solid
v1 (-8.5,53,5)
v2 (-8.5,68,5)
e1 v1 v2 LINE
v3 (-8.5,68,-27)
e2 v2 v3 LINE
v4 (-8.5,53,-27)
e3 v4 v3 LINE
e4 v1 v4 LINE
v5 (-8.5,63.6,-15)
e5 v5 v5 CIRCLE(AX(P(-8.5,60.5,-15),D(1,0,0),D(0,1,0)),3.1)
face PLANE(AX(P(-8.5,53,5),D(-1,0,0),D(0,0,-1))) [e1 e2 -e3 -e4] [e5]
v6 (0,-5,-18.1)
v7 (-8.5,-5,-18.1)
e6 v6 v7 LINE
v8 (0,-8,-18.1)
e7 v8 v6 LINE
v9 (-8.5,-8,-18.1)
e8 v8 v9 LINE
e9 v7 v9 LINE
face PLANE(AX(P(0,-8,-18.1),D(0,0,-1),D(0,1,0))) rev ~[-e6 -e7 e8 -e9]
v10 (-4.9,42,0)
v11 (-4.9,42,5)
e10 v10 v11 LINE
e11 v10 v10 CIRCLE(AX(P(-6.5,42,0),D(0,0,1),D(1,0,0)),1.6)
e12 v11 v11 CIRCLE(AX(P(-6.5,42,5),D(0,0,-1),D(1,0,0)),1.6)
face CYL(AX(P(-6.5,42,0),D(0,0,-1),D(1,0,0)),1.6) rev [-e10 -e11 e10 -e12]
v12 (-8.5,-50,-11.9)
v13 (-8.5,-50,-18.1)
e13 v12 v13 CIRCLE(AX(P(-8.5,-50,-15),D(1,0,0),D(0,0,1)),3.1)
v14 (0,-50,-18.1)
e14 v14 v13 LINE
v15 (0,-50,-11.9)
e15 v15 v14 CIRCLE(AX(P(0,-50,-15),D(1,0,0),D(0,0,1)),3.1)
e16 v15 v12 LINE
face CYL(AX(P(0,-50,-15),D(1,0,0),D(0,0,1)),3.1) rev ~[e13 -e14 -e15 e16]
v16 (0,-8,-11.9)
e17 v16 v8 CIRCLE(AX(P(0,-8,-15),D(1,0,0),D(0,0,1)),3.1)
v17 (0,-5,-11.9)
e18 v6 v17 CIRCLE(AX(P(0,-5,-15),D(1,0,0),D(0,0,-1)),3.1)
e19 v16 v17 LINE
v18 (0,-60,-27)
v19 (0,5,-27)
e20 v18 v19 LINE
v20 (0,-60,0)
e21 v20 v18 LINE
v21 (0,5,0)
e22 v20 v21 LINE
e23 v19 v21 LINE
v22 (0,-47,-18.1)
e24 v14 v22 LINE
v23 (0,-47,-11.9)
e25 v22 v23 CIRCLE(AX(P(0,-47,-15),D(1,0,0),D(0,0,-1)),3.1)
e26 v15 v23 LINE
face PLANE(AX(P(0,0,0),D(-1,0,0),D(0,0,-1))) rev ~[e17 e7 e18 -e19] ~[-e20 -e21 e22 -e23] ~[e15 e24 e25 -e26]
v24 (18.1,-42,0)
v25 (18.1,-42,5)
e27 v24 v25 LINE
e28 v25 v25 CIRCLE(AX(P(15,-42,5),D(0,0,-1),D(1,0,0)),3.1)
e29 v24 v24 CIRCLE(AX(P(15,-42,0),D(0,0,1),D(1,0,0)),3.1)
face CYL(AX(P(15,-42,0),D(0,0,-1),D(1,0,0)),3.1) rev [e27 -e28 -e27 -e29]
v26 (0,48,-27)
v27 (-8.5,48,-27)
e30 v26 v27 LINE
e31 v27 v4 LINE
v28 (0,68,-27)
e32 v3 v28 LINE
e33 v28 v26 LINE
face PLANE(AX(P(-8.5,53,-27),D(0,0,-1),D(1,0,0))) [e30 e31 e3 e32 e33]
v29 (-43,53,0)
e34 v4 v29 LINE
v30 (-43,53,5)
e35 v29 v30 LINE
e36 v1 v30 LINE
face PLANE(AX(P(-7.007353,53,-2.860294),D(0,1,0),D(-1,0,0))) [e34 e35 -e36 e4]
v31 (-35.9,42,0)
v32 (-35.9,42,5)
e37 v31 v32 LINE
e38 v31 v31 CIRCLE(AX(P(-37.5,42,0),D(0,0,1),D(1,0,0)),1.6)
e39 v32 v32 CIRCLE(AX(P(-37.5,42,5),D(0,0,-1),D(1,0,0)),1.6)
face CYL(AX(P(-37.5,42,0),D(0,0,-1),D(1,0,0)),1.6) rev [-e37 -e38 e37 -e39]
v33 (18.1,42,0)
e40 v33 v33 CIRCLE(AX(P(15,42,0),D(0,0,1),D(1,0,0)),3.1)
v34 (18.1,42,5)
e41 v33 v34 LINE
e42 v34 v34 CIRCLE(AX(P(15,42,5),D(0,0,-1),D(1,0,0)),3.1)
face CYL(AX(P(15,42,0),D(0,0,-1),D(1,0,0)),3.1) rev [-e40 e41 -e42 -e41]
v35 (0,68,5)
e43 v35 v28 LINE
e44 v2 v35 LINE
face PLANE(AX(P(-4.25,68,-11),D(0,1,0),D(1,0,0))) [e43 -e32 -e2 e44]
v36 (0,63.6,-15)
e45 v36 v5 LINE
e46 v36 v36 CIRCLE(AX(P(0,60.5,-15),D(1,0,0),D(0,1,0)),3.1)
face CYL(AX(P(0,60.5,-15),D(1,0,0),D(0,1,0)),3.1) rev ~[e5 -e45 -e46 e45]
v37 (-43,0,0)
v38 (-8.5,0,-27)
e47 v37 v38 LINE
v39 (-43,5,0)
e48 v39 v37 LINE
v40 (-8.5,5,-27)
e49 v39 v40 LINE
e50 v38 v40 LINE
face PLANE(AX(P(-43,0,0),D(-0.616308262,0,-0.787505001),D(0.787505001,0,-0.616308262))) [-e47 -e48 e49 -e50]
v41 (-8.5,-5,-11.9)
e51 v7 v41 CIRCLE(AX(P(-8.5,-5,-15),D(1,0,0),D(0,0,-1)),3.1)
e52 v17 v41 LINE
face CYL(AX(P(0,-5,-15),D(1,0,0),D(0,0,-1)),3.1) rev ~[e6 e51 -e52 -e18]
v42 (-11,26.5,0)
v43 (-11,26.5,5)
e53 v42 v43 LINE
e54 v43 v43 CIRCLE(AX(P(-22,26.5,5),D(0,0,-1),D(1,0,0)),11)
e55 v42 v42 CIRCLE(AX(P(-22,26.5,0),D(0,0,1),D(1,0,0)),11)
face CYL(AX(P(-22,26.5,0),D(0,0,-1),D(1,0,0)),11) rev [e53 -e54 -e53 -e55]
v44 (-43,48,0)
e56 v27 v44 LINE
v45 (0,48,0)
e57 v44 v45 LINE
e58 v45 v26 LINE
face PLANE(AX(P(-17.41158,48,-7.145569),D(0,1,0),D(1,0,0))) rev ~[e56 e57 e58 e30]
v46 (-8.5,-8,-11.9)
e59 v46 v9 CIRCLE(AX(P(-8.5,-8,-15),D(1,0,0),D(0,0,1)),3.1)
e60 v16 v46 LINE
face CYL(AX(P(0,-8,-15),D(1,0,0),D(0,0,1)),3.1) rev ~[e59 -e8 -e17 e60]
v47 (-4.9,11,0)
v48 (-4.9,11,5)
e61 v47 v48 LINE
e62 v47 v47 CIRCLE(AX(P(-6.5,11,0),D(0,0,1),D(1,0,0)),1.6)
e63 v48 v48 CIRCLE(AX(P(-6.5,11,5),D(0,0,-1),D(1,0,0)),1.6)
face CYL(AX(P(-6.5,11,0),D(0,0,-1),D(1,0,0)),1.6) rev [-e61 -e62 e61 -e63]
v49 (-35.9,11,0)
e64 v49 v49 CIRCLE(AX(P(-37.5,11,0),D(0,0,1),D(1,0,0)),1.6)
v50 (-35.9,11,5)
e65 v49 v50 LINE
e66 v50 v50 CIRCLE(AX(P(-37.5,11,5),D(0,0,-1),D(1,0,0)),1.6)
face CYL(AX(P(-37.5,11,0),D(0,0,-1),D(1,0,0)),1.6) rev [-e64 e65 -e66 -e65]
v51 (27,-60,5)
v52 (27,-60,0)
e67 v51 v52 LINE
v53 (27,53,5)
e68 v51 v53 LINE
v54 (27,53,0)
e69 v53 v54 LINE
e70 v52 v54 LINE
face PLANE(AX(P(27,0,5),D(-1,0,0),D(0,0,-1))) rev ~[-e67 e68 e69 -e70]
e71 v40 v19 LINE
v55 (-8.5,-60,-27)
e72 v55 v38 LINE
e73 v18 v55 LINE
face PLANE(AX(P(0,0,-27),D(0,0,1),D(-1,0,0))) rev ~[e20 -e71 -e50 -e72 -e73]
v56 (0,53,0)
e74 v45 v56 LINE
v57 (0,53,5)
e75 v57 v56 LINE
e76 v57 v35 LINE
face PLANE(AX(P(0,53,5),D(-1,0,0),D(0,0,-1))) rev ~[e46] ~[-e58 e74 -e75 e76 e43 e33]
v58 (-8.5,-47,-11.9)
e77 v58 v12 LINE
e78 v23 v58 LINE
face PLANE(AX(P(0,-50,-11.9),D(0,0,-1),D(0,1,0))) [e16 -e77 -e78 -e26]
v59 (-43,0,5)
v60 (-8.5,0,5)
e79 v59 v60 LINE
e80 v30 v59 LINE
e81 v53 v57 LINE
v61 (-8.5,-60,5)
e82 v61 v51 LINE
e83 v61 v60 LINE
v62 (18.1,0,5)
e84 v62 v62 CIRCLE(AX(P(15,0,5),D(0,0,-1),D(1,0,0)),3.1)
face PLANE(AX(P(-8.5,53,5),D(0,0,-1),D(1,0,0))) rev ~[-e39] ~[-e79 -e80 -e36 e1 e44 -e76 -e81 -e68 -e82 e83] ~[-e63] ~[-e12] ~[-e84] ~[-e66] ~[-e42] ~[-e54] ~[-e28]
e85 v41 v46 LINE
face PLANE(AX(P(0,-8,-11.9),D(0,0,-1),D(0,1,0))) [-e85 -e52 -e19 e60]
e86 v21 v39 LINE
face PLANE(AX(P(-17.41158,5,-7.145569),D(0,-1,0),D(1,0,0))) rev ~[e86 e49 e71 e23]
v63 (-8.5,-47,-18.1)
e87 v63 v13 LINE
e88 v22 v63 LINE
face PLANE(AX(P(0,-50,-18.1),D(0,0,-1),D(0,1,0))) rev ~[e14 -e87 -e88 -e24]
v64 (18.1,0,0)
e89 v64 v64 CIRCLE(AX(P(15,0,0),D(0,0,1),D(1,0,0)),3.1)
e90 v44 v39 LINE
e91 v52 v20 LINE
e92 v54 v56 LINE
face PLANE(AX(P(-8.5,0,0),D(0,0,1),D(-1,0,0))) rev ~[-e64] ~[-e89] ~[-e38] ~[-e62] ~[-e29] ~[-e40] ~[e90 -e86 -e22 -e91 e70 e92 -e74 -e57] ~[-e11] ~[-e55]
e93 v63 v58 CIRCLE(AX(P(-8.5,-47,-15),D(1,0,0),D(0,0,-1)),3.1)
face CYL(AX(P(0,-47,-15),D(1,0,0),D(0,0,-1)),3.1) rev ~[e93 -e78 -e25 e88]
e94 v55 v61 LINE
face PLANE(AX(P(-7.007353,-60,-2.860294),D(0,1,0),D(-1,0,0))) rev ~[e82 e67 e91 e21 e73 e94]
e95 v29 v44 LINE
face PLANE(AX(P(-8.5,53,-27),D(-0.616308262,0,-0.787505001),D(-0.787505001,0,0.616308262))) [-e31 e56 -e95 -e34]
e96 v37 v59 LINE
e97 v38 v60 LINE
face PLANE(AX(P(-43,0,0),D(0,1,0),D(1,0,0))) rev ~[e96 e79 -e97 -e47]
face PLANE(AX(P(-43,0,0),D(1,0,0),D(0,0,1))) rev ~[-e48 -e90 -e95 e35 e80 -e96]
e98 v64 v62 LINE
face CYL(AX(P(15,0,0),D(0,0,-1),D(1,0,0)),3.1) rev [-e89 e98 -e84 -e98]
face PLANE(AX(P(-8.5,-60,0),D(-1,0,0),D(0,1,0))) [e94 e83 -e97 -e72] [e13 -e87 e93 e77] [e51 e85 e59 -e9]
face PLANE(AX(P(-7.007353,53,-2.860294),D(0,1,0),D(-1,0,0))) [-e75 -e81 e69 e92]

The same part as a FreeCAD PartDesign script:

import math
import FreeCAD as App
import Part
import Sketcher

V = App.Vector
Q = App.Units.Quantity

doc = App.newDocument("Part")
params = doc.addObject("Spreadsheet::Sheet", "Params")
for row, (alias, value) in enumerate([
    ("sketch1_width", "70 mm"),
    ("sketch1_width2", "27 mm"),
    ("sketch1_height", "5 mm"),
    ("sketch1_width3", "34.5 mm"),
    ("pad1_length", "60 mm"),
    ("pad1_length2", "53 mm"),
    ("sketch2_diameter", "22 mm"),
    ("sketch2_diameter2", "3.2 mm"),
    ("sketch2_diameter3", "6.2 mm"),
    ("sketch2_height", "60 mm"),
    ("sketch2_width", "34.5 mm"),
    ("sketch3_radius", "3.1 mm"),
    ("sketch3_width", "3 mm"),
    ("sketch4_width", "43 mm"),
    ("sketch4_height", "5 mm"),
    ("sketch4_height2", "32 mm"),
    ("sketch4_width2", "8.5 mm"),
    ("pad2_length", "5 mm"),
    ("sketch5_width", "43 mm"),
    ("sketch5_height", "32 mm"),
    ("sketch5_height2", "5 mm"),
    ("sketch5_width2", "8.5 mm"),
    ("pad3_length", "5 mm"),
    ("sketch6_width", "43 mm"),
    ("sketch6_height", "27 mm"),
    ("sketch7_height", "32 mm"),
    ("sketch7_width", "8.5 mm"),
    ("pad4_length", "15 mm"),
    ("sketch8_diameter", "6.2 mm"),
], start=1):
    params.set(f"A{row}", alias)
    params.set(f"B{row}", "=" + value)
    params.setAlias(f"B{row}", alias)

body = doc.addObject("PartDesign::Body", "Body")

# Sketch on XZ plane
sketch1 = doc.addObject("Sketcher::SketchObject", "Sketch")
body.addObject(sketch1)
sketch1.AttachmentSupport = (doc.XZ_Plane, [""])
sketch1.MapMode = "FlatFace"
sketch1.addGeometry([
    Part.LineSegment(V(27, 5, 0), V(-43, 5, 0)),  # 0
    Part.LineSegment(V(-43, 5, 0), V(-43, 0, 0)),  # 1
    Part.LineSegment(V(-43, 0, 0), V(-8.5, 0, 0)),  # 2
    Part.LineSegment(V(-8.5, 0, 0), V(-8.5, -27, 0)),  # 3
    Part.LineSegment(V(-8.5, -27, 0), V(0, -27, 0)),  # 4
    Part.LineSegment(V(0, -27, 0), V(0, 0, 0)),  # 5
    Part.LineSegment(V(0, 0, 0), V(27, 0, 0)),  # 6
    Part.LineSegment(V(27, 0, 0), V(27, 5, 0)),  # 7
], False)
sketch1.addConstraint([
    Sketcher.Constraint("Coincident", 0, 2, 1, 1),
    Sketcher.Constraint("Coincident", 1, 2, 2, 1),
    Sketcher.Constraint("Coincident", 2, 2, 3, 1),
    Sketcher.Constraint("Coincident", 3, 2, 4, 1),
    Sketcher.Constraint("Coincident", 4, 2, 5, 1),
    Sketcher.Constraint("Coincident", 5, 2, 6, 1),
    Sketcher.Constraint("Coincident", 6, 2, 7, 1),
    Sketcher.Constraint("Coincident", 7, 2, 0, 1),
    Sketcher.Constraint("Horizontal", 0),
    Sketcher.Constraint("Vertical", 1),
    Sketcher.Constraint("Horizontal", 2),
    Sketcher.Constraint("Vertical", 3),
    Sketcher.Constraint("Horizontal", 4),
    Sketcher.Constraint("Vertical", 5),
    Sketcher.Constraint("Horizontal", 6),
    Sketcher.Constraint("Vertical", 7),
    Sketcher.Constraint("Coincident", 5, 2, -1, 1),
    Sketcher.Constraint("PointOnObject", 1, 2, -1),
    Sketcher.Constraint("Equal", 6, 3),
    Sketcher.Constraint("DistanceX", 0, 2, 0, 1, Q("70 mm")),
    Sketcher.Constraint("DistanceX", 6, 1, 6, 2, Q("27 mm")),
    Sketcher.Constraint("DistanceY", 1, 2, 1, 1, Q("5 mm")),
    Sketcher.Constraint("DistanceX", 2, 1, 2, 2, Q("34.5 mm")),
])
sketch1.setExpression("Constraints[19]", "Params.sketch1_width")
sketch1.setExpression("Constraints[20]", "Params.sketch1_width2")
sketch1.setExpression("Constraints[21]", "Params.sketch1_height")
sketch1.setExpression("Constraints[22]", "Params.sketch1_width3")
pad1 = doc.addObject("PartDesign::Pad", "Pad")
body.addObject(pad1)
pad1.Profile = sketch1
pad1.Type = "TwoLengths"
pad1.setExpression("Length", "Params.pad1_length")
pad1.setExpression("Length2", "Params.pad1_length2")

# Sketch on XY plane
sketch2 = doc.addObject("Sketcher::SketchObject", "Sketch001")
body.addObject(sketch2)
sketch2.AttachmentSupport = (doc.XY_Plane, [""])
sketch2.MapMode = "FlatFace"
sketch2.addGeometry([
    Part.Circle(V(-22, 26.5, 0), V(0, 0, 1), 11),  # 0
    Part.Circle(V(-37.5, 42, 0), V(0, 0, 1), 1.6),  # 1
    Part.Circle(V(-6.5, 42, 0), V(0, 0, 1), 1.6),  # 2
    Part.Circle(V(-37.5, 11, 0), V(0, 0, 1), 1.6),  # 3
    Part.Circle(V(-6.5, 11, 0), V(0, 0, 1), 1.6),  # 4
    Part.Circle(V(15, 42, 0), V(0, 0, 1), 3.1),  # 5
    Part.Circle(V(15, -42, 0), V(0, 0, 1), 3.1),  # 6
    Part.Circle(V(15, 0, 0), V(0, 0, 1), 3.1),  # 7
    Part.LineSegment(V(-43, 0, 0), V(-43, -60, 0)),  # 8
    Part.LineSegment(V(-43, -60, 0), V(-8.5, -60, 0)),  # 9
    Part.LineSegment(V(-8.5, -60, 0), V(-8.5, 0, 0)),  # 10
    Part.LineSegment(V(-8.5, 0, 0), V(-43, 0, 0)),  # 11
], False)
sketch2.addConstraint([
    Sketcher.Constraint("Coincident", 8, 2, 9, 1),
    Sketcher.Constraint("Coincident", 9, 2, 10, 1),
    Sketcher.Constraint("Coincident", 10, 2, 11, 1),
    Sketcher.Constraint("Coincident", 11, 2, 8, 1),
    Sketcher.Constraint("Vertical", 8),
    Sketcher.Constraint("Horizontal", 9),
    Sketcher.Constraint("Vertical", 10),
    Sketcher.Constraint("Horizontal", 11),
    Sketcher.Constraint("Equal", 1, 2),
    Sketcher.Constraint("Equal", 2, 3),
    Sketcher.Constraint("Equal", 3, 4),
    Sketcher.Constraint("Equal", 5, 6),
    Sketcher.Constraint("Equal", 6, 7),
    Sketcher.Constraint("Symmetric", 5, 3, 6, 3, -1),
    Sketcher.Constraint("PointOnObject", 7, 3, -1),
    Sketcher.Constraint("PointOnObject", 10, 2, -1),
    Sketcher.Constraint("Horizontal", 1, 3, 2, 3),
    Sketcher.Constraint("Horizontal", 3, 3, 4, 3),
    Sketcher.Constraint("Horizontal", 2, 3, 5, 3),
    Sketcher.Constraint("Vertical", 1, 3, 3, 3),
    Sketcher.Constraint("Vertical", 2, 3, 4, 3),
    Sketcher.Constraint("Vertical", 6, 3, 7, 3),
    Sketcher.Constraint("Diameter", 0, Q("22 mm")),
    Sketcher.Constraint("Diameter", 1, Q("3.2 mm")),
    Sketcher.Constraint("Diameter", 5, Q("6.2 mm")),
    Sketcher.Constraint("DistanceY", 8, 2, 8, 1, Q("60 mm")),
    Sketcher.Constraint("DistanceX", 9, 1, 9, 2, Q("34.5 mm")),
    Sketcher.Constraint("DistanceX", 0, 3, -1, 1, Q("22 mm")),
    Sketcher.Constraint("DistanceY", -1, 1, 1, 3, Q("42 mm")),
    Sketcher.Constraint("DistanceY", -1, 1, 3, 3, Q("11 mm")),
    Sketcher.Constraint("DistanceX", -1, 1, 5, 3, Q("15 mm")),
    Sketcher.Constraint("DistanceX", 8, 2, -1, 1, Q("43 mm")),
    Sketcher.Constraint("DistanceX", 1, 3, 2, 3, Q("31 mm")),
    Sketcher.Constraint("DistanceX", 9, 2, 4, 3, Q("2 mm")),
    Sketcher.Constraint("DistanceY", -1, 1, 0, 3, Q("26.5 mm")),
])
sketch2.setExpression("Constraints[22]", "Params.sketch2_diameter")
sketch2.setExpression("Constraints[23]", "Params.sketch2_diameter2")
sketch2.setExpression("Constraints[24]", "Params.sketch2_diameter3")
sketch2.setExpression("Constraints[25]", "Params.sketch2_height")
sketch2.setExpression("Constraints[26]", "Params.sketch2_width")
pocket1 = doc.addObject("PartDesign::Pocket", "Pocket")
body.addObject(pocket1)
pocket1.Profile = sketch2
pocket1.Type = "ThroughAll"
pocket1.Midplane = True

# Sketch on YZ plane
sketch3 = doc.addObject("Sketcher::SketchObject", "Sketch002")
body.addObject(sketch3)
sketch3.AttachmentSupport = (doc.YZ_Plane, [""])
sketch3.MapMode = "FlatFace"
sketch3.addGeometry([
    Part.ArcOfCircle(Part.Circle(V(-50, -15, 0), V(0, 0, 1), 3.1), math.radians(90), math.radians(270)),  # 0
    Part.LineSegment(V(-50, -18.1, 0), V(-47, -18.1, 0)),  # 1
    Part.ArcOfCircle(Part.Circle(V(-47, -15, 0), V(0, 0, 1), 3.1), math.radians(-90), math.radians(90)),  # 2
    Part.LineSegment(V(-47, -11.9, 0), V(-50, -11.9, 0)),  # 3
    Part.ArcOfCircle(Part.Circle(V(-8, -15, 0), V(0, 0, 1), 3.1), math.radians(90), math.radians(270)),  # 4
    Part.LineSegment(V(-8, -18.1, 0), V(-5, -18.1, 0)),  # 5
    Part.ArcOfCircle(Part.Circle(V(-5, -15, 0), V(0, 0, 1), 3.1), math.radians(-90), math.radians(90)),  # 6
    Part.LineSegment(V(-5, -11.9, 0), V(-8, -11.9, 0)),  # 7
], False)
sketch3.addConstraint([
    Sketcher.Constraint("Tangent", 0, 2, 1, 1),
    Sketcher.Constraint("Tangent", 1, 2, 2, 1),
    Sketcher.Constraint("Tangent", 2, 2, 3, 1),
    Sketcher.Constraint("Tangent", 3, 2, 0, 1),
    Sketcher.Constraint("Tangent", 4, 2, 5, 1),
    Sketcher.Constraint("Tangent", 5, 2, 6, 1),
    Sketcher.Constraint("Tangent", 6, 2, 7, 1),
    Sketcher.Constraint("Tangent", 7, 2, 4, 1),
    Sketcher.Constraint("Horizontal", 1),
    Sketcher.Constraint("Horizontal", 3),
    Sketcher.Constraint("Horizontal", 5),
    Sketcher.Constraint("Horizontal", 7),
    Sketcher.Constraint("Equal", 2, 4),
    Sketcher.Constraint("Horizontal", 2, 3, 4, 3),
    Sketcher.Constraint("Equal", 3, 5),
    Sketcher.Constraint("Radius", 0, Q("3.1 mm")),
    Sketcher.Constraint("DistanceX", 1, 1, 1, 2, Q("3 mm")),
    Sketcher.Constraint("DistanceX", 0, 3, -1, 1, Q("50 mm")),
    Sketcher.Constraint("DistanceY", 0, 3, -1, 1, Q("15 mm")),
    Sketcher.Constraint("DistanceX", 4, 3, -1, 1, Q("8 mm")),
])
sketch3.setExpression("Constraints[15]", "Params.sketch3_radius")
sketch3.setExpression("Constraints[16]", "Params.sketch3_width")
pocket2 = doc.addObject("PartDesign::Pocket", "Pocket001")
body.addObject(pocket2)
pocket2.Profile = sketch3
pocket2.Type = "ThroughAll"

# Sketch on XZ plane
sketch4 = doc.addObject("Sketcher::SketchObject", "Sketch003")
body.addObject(sketch4)
sketch4.AttachmentSupport = (doc.XZ_Plane, [""])
sketch4.MapMode = "FlatFace"
sketch4.addGeometry([
    Part.LineSegment(V(-43, 5, 0), V(-43, 0, 0)),  # 0
    Part.LineSegment(V(-43, 0, 0), V(-8.5, -27, 0)),  # 1
    Part.LineSegment(V(-8.5, -27, 0), V(0, -27, 0)),  # 2
    Part.LineSegment(V(0, -27, 0), V(0, 5, 0)),  # 3
    Part.LineSegment(V(0, 5, 0), V(-43, 5, 0)),  # 4
], False)
sketch4.addConstraint([
    Sketcher.Constraint("Coincident", 0, 2, 1, 1),
    Sketcher.Constraint("Coincident", 1, 2, 2, 1),
    Sketcher.Constraint("Coincident", 2, 2, 3, 1),
    Sketcher.Constraint("Coincident", 3, 2, 4, 1),
    Sketcher.Constraint("Coincident", 4, 2, 0, 1),
    Sketcher.Constraint("Vertical", 0),
    Sketcher.Constraint("Horizontal", 2),
    Sketcher.Constraint("Vertical", 3),
    Sketcher.Constraint("Horizontal", 4),
    Sketcher.Constraint("PointOnObject", 0, 2, -1),
    Sketcher.Constraint("PointOnObject", 2, 2, -2),
    Sketcher.Constraint("DistanceX", 4, 2, 4, 1, Q("43 mm")),
    Sketcher.Constraint("DistanceY", 0, 2, 0, 1, Q("5 mm")),
    Sketcher.Constraint("DistanceY", 3, 1, 3, 2, Q("32 mm")),
    Sketcher.Constraint("DistanceX", 2, 1, 2, 2, Q("8.5 mm")),
])
sketch4.setExpression("Constraints[11]", "Params.sketch4_width")
sketch4.setExpression("Constraints[12]", "Params.sketch4_height")
sketch4.setExpression("Constraints[13]", "Params.sketch4_height2")
sketch4.setExpression("Constraints[14]", "Params.sketch4_width2")
pad2 = doc.addObject("PartDesign::Pad", "Pad001")
body.addObject(pad2)
pad2.Profile = sketch4
pad2.setExpression("Length", "Params.pad2_length")
pad2.Reversed = True

# Sketch on XZ plane
sketch5 = doc.addObject("Sketcher::SketchObject", "Sketch004")
body.addObject(sketch5)
sketch5.AttachmentSupport = (doc.XZ_Plane, [""])
sketch5.MapMode = "FlatFace"
sketch5.AttachmentOffset = App.Placement(V(0, 0, -53), App.Rotation())
sketch5.addGeometry([
    Part.LineSegment(V(-43, 5, 0), V(0, 5, 0)),  # 0
    Part.LineSegment(V(0, 5, 0), V(0, -27, 0)),  # 1
    Part.LineSegment(V(0, -27, 0), V(-8.5, -27, 0)),  # 2
    Part.LineSegment(V(-8.5, -27, 0), V(-43, 0, 0)),  # 3
    Part.LineSegment(V(-43, 0, 0), V(-43, 5, 0)),  # 4
], False)
sketch5.addConstraint([
    Sketcher.Constraint("Coincident", 0, 2, 1, 1),
    Sketcher.Constraint("Coincident", 1, 2, 2, 1),
    Sketcher.Constraint("Coincident", 2, 2, 3, 1),
    Sketcher.Constraint("Coincident", 3, 2, 4, 1),
    Sketcher.Constraint("Coincident", 4, 2, 0, 1),
    Sketcher.Constraint("Horizontal", 0),
    Sketcher.Constraint("Vertical", 1),
    Sketcher.Constraint("Horizontal", 2),
    Sketcher.Constraint("Vertical", 4),
    Sketcher.Constraint("PointOnObject", 0, 2, -2),
    Sketcher.Constraint("PointOnObject", 3, 2, -1),
    Sketcher.Constraint("DistanceX", 0, 1, 0, 2, Q("43 mm")),
    Sketcher.Constraint("DistanceY", 1, 2, 1, 1, Q("32 mm")),
    Sketcher.Constraint("DistanceY", 4, 1, 4, 2, Q("5 mm")),
    Sketcher.Constraint("DistanceX", 2, 2, 2, 1, Q("8.5 mm")),
])
sketch5.setExpression("Constraints[11]", "Params.sketch5_width")
sketch5.setExpression("Constraints[12]", "Params.sketch5_height")
sketch5.setExpression("Constraints[13]", "Params.sketch5_height2")
sketch5.setExpression("Constraints[14]", "Params.sketch5_width2")
pad3 = doc.addObject("PartDesign::Pad", "Pad002")
body.addObject(pad3)
pad3.Profile = sketch5
pad3.setExpression("Length", "Params.pad3_length")

# Sketch on YZ plane
sketch6 = doc.addObject("Sketcher::SketchObject", "Sketch005")
body.addObject(sketch6)
sketch6.AttachmentSupport = (doc.YZ_Plane, [""])
sketch6.MapMode = "FlatFace"
sketch6.addGeometry([
    Part.LineSegment(V(5, 0, 0), V(5, -27, 0)),
    Part.LineSegment(V(5, -27, 0), V(48, -27, 0)),
    Part.LineSegment(V(48, -27, 0), V(48, 0, 0)),
    Part.LineSegment(V(48, 0, 0), V(5, 0, 0)),
], False)
sketch6.addConstraint([
    Sketcher.Constraint("Coincident", 0, 2, 1, 1),
    Sketcher.Constraint("Coincident", 1, 2, 2, 1),
    Sketcher.Constraint("Coincident", 2, 2, 3, 1),
    Sketcher.Constraint("Coincident", 3, 2, 0, 1),
    Sketcher.Constraint("Vertical", 0),
    Sketcher.Constraint("Horizontal", 1),
    Sketcher.Constraint("Vertical", 2),
    Sketcher.Constraint("Horizontal", 3),
    Sketcher.Constraint("PointOnObject", 2, 2, -1),
    Sketcher.Constraint("DistanceX", 1, 1, 1, 2, Q("43 mm")),
    Sketcher.Constraint("DistanceY", 0, 2, 0, 1, Q("27 mm")),
    Sketcher.Constraint("DistanceX", -1, 1, 0, 2, Q("5 mm")),
])
sketch6.setExpression("Constraints[9]", "Params.sketch6_width")
sketch6.setExpression("Constraints[10]", "Params.sketch6_height")
pocket3 = doc.addObject("PartDesign::Pocket", "Pocket002")
body.addObject(pocket3)
pocket3.Profile = sketch6
pocket3.Type = "ThroughAll"

# Sketch on XZ plane
sketch7 = doc.addObject("Sketcher::SketchObject", "Sketch006")
body.addObject(sketch7)
sketch7.AttachmentSupport = (doc.XZ_Plane, [""])
sketch7.MapMode = "FlatFace"
sketch7.AttachmentOffset = App.Placement(V(0, 0, -53), App.Rotation())
sketch7.addGeometry([
    Part.LineSegment(V(-8.5, -27, 0), V(-8.5, 5, 0)),
    Part.LineSegment(V(-8.5, 5, 0), V(0, 5, 0)),
    Part.LineSegment(V(0, 5, 0), V(0, -27, 0)),
    Part.LineSegment(V(0, -27, 0), V(-8.5, -27, 0)),
], False)
sketch7.addConstraint([
    Sketcher.Constraint("Coincident", 0, 2, 1, 1),
    Sketcher.Constraint("Coincident", 1, 2, 2, 1),
    Sketcher.Constraint("Coincident", 2, 2, 3, 1),
    Sketcher.Constraint("Coincident", 3, 2, 0, 1),
    Sketcher.Constraint("Vertical", 0),
    Sketcher.Constraint("Horizontal", 1),
    Sketcher.Constraint("Vertical", 2),
    Sketcher.Constraint("Horizontal", 3),
    Sketcher.Constraint("PointOnObject", 1, 2, -2),
    Sketcher.Constraint("DistanceY", 0, 1, 0, 2, Q("32 mm")),
    Sketcher.Constraint("DistanceX", 1, 1, 1, 2, Q("8.5 mm")),
    Sketcher.Constraint("DistanceY", -1, 1, 0, 2, Q("5 mm")),
])
sketch7.setExpression("Constraints[9]", "Params.sketch7_height")
sketch7.setExpression("Constraints[10]", "Params.sketch7_width")
pad4 = doc.addObject("PartDesign::Pad", "Pad003")
body.addObject(pad4)
pad4.Profile = sketch7
pad4.setExpression("Length", "Params.pad4_length")
pad4.Reversed = True

# Sketch on YZ plane
sketch8 = doc.addObject("Sketcher::SketchObject", "Sketch007")
body.addObject(sketch8)
sketch8.AttachmentSupport = (doc.YZ_Plane, [""])
sketch8.MapMode = "FlatFace"
sketch8.addGeometry(Part.Circle(V(60.5, -15, 0), V(0, 0, 1), 3.1), False)
sketch8.addConstraint([
    Sketcher.Constraint("Diameter", 0, Q("6.2 mm")),
    Sketcher.Constraint("DistanceY", 0, 3, -1, 1, Q("15 mm")),
    Sketcher.Constraint("DistanceX", -1, 1, 0, 3, Q("60.5 mm")),
])
sketch8.setExpression("Constraints[0]", "Params.sketch8_diameter")
pocket4 = doc.addObject("PartDesign::Pocket", "Pocket003")
body.addObject(pocket4)
pocket4.Profile = sketch8
pocket4.Type = "ThroughAll"

doc.recompute()
